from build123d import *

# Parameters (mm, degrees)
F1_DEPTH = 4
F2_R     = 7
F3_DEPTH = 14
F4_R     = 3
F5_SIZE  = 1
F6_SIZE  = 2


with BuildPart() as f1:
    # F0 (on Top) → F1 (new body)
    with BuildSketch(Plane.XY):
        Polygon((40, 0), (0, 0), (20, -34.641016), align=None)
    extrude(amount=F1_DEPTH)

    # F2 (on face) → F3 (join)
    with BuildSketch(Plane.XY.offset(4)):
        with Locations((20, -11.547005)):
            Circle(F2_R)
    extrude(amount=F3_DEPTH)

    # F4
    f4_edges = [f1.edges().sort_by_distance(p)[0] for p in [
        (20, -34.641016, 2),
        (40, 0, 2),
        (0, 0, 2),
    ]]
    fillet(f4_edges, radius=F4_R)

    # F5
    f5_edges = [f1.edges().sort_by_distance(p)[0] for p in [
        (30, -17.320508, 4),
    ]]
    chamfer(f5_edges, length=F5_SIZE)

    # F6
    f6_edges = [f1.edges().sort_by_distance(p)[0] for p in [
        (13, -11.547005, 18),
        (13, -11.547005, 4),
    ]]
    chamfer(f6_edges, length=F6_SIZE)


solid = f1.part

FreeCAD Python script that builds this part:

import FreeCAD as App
import Part
import Sketcher
from FreeCAD import Vector
Q = App.Units.Quantity


def edges_at(feature, points):
    """Names of the edges that pass closest to the given points."""
    edges = feature.Shape.Edges
    near = lambda p: min(range(len(edges)), key=lambda i: edges[i].distToShape(Part.Vertex(*p))[0])
    return sorted({f"Edge{near(p) + 1}" for p in points})

doc = App.newDocument("Part")
params = doc.addObject("Spreadsheet::Sheet", "Params")
for row, (alias, value) in enumerate([
    ("sketch1_width", "40 mm"),
    ("pad1_length", "4 mm"),
    ("sketch2_diameter", "14 mm"),
    ("pad2_length", "14 mm"),
    ("fillet_radius", "3 mm"),
    ("chamfer_size", "1 mm"),
    ("chamfer2_size", "2 mm"),
], start=1):
    params.set(f"A{row}", alias)
    params.set(f"B{row}", "=" + value)
    params.setAlias(f"B{row}", alias)

body = doc.addObject("PartDesign::Body", "Body")

# Sketch on XY plane
sketch1 = body.newObject("Sketcher::SketchObject", "Sketch")
sketch1.AttachmentSupport = (doc.getObject("XY_Plane"), [""])
sketch1.MapMode = "FlatFace"
sketch1.addGeometry([
    Part.LineSegment(Vector(40, 0, 0), Vector(0, 0, 0)),
    Part.LineSegment(Vector(0, 0, 0), Vector(20, -35, 0)),
    Part.LineSegment(Vector(20, -35, 0), Vector(40, 0, 0)),
], False)
sketch1.addConstraint([
    Sketcher.Constraint("Coincident", 0, 2, 1, 1),
    Sketcher.Constraint("Coincident", 1, 2, 2, 1),
    Sketcher.Constraint("Coincident", 2, 2, 0, 1),
    Sketcher.Constraint("Horizontal", 0),
    Sketcher.Constraint("Coincident", 0, 2, -1, 1),
    Sketcher.Constraint("Equal", 1, 2),
    Sketcher.Constraint("DistanceX", 0, 2, 0, 1, Q("40 mm")),
    Sketcher.Constraint("Angle", 1, Q("-60 deg")),
])
sketch1.setExpression("Constraints[6]", "Params.sketch1_width")
pad1 = body.newObject("PartDesign::Pad", "Pad")
pad1.Profile = sketch1
pad1.setExpression("Length", "Params.pad1_length")

# Sketch on XY plane
sketch2 = body.newObject("Sketcher::SketchObject", "Sketch001")
sketch2.AttachmentSupport = (doc.getObject("XY_Plane"), [""])
sketch2.MapMode = "FlatFace"
sketch2.AttachmentOffset = App.Placement(Vector(0, 0, 4), App.Rotation())
sketch2.addGeometry(Part.Circle(Vector(20, -12, 0), Vector(0, 0, 1), 7), False)
sketch2.addConstraint([
    Sketcher.Constraint("Diameter", 0, Q("14 mm")),
    Sketcher.Constraint("DistanceX", -1, 1, 0, 3, Q("20 mm")),
    Sketcher.Constraint("DistanceY", 0, 3, -1, 1, Q("11.547005 mm")),
])
sketch2.setExpression("Constraints[0]", "Params.sketch2_diameter")
pad2 = body.newObject("PartDesign::Pad", "Pad001")
pad2.Profile = sketch2
pad2.setExpression("Length", "Params.pad2_length")
doc.recompute()

fillet = body.newObject("PartDesign::Fillet", "Fillet")
fillet.Base = (pad2, edges_at(pad2, [(20, -34.641, 2), (40, 0, 2), (0, 0, 2)]))
fillet.setExpression("Radius", "Params.fillet_radius")
doc.recompute()

chamfer = body.newObject("PartDesign::Chamfer", "Chamfer")
chamfer.Base = (fillet, edges_at(fillet, [(30, -17.321, 4)]))
chamfer.setExpression("Size", "Params.chamfer_size")
doc.recompute()

chamfer2 = body.newObject("PartDesign::Chamfer", "Chamfer001")
chamfer2.Base = (chamfer, edges_at(chamfer, [(13, -11.547, 18), (13, -11.547, 4)]))
chamfer2.setExpression("Size", "Params.chamfer2_size")

doc.recompute()
